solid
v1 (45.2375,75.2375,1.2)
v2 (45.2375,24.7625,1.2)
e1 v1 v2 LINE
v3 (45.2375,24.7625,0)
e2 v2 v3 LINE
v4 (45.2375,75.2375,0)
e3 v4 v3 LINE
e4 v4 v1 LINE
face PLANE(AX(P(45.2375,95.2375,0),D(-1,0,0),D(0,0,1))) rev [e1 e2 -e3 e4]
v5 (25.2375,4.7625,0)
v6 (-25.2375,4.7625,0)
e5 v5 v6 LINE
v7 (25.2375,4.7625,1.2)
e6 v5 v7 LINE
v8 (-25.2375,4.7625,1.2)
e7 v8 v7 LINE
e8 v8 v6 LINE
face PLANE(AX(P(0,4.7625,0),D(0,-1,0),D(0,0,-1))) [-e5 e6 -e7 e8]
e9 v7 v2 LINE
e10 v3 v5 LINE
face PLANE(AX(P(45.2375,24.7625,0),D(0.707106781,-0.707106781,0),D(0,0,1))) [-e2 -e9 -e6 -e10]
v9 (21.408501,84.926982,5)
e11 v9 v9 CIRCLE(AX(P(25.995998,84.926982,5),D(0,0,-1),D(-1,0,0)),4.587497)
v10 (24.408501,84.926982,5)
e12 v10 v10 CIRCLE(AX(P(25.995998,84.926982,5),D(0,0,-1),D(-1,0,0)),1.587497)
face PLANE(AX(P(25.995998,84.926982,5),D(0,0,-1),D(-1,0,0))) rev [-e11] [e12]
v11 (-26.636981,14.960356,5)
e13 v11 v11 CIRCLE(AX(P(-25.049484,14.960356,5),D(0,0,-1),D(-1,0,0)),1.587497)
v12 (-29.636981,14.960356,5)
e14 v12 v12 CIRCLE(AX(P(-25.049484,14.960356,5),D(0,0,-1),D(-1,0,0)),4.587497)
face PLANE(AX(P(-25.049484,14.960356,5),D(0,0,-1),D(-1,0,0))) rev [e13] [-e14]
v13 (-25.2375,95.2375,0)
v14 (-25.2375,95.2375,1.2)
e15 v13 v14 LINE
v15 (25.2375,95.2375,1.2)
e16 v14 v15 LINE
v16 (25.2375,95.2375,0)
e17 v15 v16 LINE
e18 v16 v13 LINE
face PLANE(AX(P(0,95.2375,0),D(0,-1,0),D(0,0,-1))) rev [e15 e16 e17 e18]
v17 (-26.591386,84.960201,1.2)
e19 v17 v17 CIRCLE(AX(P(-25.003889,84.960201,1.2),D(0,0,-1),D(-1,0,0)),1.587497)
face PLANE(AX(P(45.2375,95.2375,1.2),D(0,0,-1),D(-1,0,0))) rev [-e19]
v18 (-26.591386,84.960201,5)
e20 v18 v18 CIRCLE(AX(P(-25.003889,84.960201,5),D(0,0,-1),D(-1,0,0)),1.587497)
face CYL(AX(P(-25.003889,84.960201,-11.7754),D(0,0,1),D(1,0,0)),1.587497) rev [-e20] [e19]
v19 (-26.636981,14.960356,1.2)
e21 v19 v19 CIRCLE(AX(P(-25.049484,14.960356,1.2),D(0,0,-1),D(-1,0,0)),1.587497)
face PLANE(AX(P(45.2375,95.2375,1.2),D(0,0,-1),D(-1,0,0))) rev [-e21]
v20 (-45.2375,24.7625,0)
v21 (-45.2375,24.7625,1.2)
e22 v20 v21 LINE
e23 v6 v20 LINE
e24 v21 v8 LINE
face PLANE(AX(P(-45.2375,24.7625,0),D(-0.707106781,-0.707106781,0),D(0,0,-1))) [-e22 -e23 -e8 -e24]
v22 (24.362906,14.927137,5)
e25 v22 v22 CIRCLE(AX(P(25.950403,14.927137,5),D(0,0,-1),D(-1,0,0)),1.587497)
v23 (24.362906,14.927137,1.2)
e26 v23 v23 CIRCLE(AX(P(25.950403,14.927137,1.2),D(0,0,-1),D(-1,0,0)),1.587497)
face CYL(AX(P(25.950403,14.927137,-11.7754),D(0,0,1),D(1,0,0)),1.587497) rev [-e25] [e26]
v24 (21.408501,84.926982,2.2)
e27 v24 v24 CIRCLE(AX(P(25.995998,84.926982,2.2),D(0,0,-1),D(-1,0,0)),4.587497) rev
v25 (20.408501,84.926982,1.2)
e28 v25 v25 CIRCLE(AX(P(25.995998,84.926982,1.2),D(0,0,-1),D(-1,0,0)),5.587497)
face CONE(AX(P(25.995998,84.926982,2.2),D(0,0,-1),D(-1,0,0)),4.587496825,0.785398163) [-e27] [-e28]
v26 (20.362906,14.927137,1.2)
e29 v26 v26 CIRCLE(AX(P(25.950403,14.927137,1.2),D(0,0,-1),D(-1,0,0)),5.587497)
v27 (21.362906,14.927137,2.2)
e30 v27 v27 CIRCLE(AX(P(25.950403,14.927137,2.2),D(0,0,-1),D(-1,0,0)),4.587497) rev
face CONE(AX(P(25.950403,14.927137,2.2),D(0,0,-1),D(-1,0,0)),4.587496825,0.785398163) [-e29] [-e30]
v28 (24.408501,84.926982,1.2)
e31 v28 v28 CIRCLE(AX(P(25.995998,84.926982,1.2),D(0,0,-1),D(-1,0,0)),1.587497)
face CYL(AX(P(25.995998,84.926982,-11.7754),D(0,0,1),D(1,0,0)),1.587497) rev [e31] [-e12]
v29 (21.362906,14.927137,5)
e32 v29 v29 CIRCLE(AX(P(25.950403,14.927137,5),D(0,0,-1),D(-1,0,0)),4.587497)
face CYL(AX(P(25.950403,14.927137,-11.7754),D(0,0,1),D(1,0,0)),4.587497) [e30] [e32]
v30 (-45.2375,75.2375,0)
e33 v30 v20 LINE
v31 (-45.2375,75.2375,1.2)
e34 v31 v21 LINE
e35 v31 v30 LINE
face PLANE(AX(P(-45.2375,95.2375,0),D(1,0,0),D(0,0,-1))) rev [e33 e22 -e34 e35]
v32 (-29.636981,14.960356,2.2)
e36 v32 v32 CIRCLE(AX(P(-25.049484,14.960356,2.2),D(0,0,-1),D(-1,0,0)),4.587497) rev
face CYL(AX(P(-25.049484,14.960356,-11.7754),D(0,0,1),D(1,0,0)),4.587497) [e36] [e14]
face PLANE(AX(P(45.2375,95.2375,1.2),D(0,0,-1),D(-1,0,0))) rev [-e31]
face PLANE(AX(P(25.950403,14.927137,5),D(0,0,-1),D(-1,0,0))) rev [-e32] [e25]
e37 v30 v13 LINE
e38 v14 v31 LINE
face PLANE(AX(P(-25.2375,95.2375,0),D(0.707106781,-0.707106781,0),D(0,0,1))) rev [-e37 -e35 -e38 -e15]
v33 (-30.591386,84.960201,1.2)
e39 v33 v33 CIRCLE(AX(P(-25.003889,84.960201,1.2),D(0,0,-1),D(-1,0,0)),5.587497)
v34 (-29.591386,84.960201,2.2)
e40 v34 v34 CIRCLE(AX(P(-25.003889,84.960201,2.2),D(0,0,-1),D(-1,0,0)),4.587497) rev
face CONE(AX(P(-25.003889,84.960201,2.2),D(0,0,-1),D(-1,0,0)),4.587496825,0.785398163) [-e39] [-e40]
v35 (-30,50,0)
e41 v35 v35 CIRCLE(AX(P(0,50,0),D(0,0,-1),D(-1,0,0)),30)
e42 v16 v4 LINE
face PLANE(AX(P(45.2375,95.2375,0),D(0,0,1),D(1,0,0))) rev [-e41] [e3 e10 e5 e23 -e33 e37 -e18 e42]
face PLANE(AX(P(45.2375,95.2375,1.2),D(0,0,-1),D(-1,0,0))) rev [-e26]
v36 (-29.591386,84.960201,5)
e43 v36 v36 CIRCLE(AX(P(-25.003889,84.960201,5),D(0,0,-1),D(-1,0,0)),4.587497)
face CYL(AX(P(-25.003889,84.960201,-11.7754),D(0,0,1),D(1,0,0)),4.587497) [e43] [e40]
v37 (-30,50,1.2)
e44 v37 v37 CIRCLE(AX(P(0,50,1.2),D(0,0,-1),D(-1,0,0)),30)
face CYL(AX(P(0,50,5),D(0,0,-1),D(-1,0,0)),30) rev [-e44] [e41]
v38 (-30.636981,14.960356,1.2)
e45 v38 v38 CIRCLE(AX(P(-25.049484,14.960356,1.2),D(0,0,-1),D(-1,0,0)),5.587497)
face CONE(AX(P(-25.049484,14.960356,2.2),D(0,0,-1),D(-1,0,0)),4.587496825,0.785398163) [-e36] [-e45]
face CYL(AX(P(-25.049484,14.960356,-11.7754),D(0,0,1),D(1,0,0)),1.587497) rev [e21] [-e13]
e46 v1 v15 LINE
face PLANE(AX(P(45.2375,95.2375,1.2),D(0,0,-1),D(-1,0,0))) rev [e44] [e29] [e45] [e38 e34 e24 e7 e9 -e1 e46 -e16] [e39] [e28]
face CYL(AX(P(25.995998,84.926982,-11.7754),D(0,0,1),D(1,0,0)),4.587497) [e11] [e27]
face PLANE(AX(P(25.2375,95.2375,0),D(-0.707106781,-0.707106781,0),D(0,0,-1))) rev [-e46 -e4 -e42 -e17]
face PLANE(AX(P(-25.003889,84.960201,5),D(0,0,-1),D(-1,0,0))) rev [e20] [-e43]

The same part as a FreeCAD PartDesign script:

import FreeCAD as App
import Part
import Sketcher


def edges_at(feature, points):
    """Names of the edges that pass closest to the given points."""
    edges = feature.Shape.Edges
    near = lambda p: min(range(len(edges)), key=lambda i: edges[i].distToShape(Part.Vertex(*p))[0])
    return sorted({f"Edge{near(p) + 1}" for p in points})

doc = App.newDocument("Part")
body = doc.addObject("PartDesign::Body", "Body")

# Sketch on XZ plane
sketch1 = body.newObject("Sketcher::SketchObject", "Sketch")
sketch1.AttachmentSupport = (doc.getObject("XZ_Plane"), [""])
sketch1.MapMode = "FlatFace"
sketch1.AttachmentOffset = App.Placement(App.Vector(0, 0, -4.7625), App.Rotation())
sketch1.addGeometry(Part.LineSegment(App.Vector(-45.2, 0, 0), App.Vector(-45.2, 1.2, 0)), False)
sketch1.addGeometry(Part.LineSegment(App.Vector(-45.2, 1.2, 0), App.Vector(45.2, 1.2, 0)), False)
sketch1.addGeometry(Part.LineSegment(App.Vector(45.2, 1.2, 0), App.Vector(45.2, 0, 0)), False)
sketch1.addGeometry(Part.LineSegment(App.Vector(45.2, 0, 0), App.Vector(-45.2, 0, 0)), False)
sketch1.addConstraint(Sketcher.Constraint("Coincident", 0, 2, 1, 1))
sketch1.addConstraint(Sketcher.Constraint("Coincident", 1, 2, 2, 1))
sketch1.addConstraint(Sketcher.Constraint("Coincident", 2, 2, 3, 1))
sketch1.addConstraint(Sketcher.Constraint("Coincident", 3, 2, 0, 1))
sketch1.addConstraint(Sketcher.Constraint("Vertical", 0))
sketch1.addConstraint(Sketcher.Constraint("Horizontal", 1))
sketch1.addConstraint(Sketcher.Constraint("Vertical", 2))
sketch1.addConstraint(Sketcher.Constraint("Horizontal", 3))
sketch1.addConstraint(Sketcher.Constraint("Symmetric", 2, 2, 3, 2, -1, 1))
sketch1.addConstraint(Sketcher.Constraint("DistanceY", 0, 1, 0, 2, 1.2))
sketch1.addConstraint(Sketcher.Constraint("DistanceX", 1, 1, 1, 2, 90.475))
pad1 = body.newObject("PartDesign::Pad", "Pad")
pad1.Profile = sketch1
pad1.Length = 90.475
pad1.Reversed = True

# Sketch on XY plane
sketch2 = body.newObject("Sketcher::SketchObject", "Sketch001")
sketch2.AttachmentSupport = (doc.getObject("XY_Plane"), [""])
sketch2.MapMode = "FlatFace"
sketch2.AttachmentOffset = App.Placement(App.Vector(0, 0, 5), App.Rotation())
sketch2.addGeometry(Part.Circle(App.Vector(-25, 85, 0), App.Vector(0, 0, 1), 4.6), False)
sketch2.addGeometry(Part.Circle(App.Vector(-25, 85, 0), App.Vector(0, 0, 1), 1.6), False)
sketch2.addGeometry(Part.Circle(App.Vector(26, 84.9, 0), App.Vector(0, 0, 1), 4.6), False)
sketch2.addGeometry(Part.Circle(App.Vector(26, 84.9, 0), App.Vector(0, 0, 1), 1.6), False)
sketch2.addGeometry(Part.Circle(App.Vector(-25, 15, 0), App.Vector(0, 0, 1), 4.6), False)
sketch2.addGeometry(Part.Circle(App.Vector(-25, 15, 0), App.Vector(0, 0, 1), 1.6), False)
sketch2.addGeometry(Part.Circle(App.Vector(26, 14.9, 0), App.Vector(0, 0, 1), 4.6), False)
sketch2.addGeometry(Part.Circle(App.Vector(26, 14.9, 0), App.Vector(0, 0, 1), 1.6), False)
sketch2.addConstraint(Sketcher.Constraint("Coincident", 1, 3, 0, 3))
sketch2.addConstraint(Sketcher.Constraint("Coincident", 3, 3, 2, 3))
sketch2.addConstraint(Sketcher.Constraint("Coincident", 5, 3, 4, 3))
sketch2.addConstraint(Sketcher.Constraint("Coincident", 7, 3, 6, 3))
sketch2.addConstraint(Sketcher.Constraint("Equal", 0, 2))
sketch2.addConstraint(Sketcher.Constraint("Equal", 1, 3))
sketch2.addConstraint(Sketcher.Constraint("Equal", 2, 4))
sketch2.addConstraint(Sketcher.Constraint("Equal", 3, 5))
sketch2.addConstraint(Sketcher.Constraint("Equal", 4, 6))
sketch2.addConstraint(Sketcher.Constraint("Equal", 5, 7))
sketch2.addConstraint(Sketcher.Constraint("Diameter", 0, 9.174994))
sketch2.addConstraint(Sketcher.Constraint("Diameter", 1, 3.174994))
sketch2.addConstraint(Sketcher.Constraint("DistanceY", -1, 1, 0, 3, 84.960201))
sketch2.addConstraint(Sketcher.Constraint("DistanceX", 0, 3, -1, 1, 25.003889))
sketch2.addConstraint(Sketcher.Constraint("DistanceY", 2, 3, 0, 3, 0.033219))
sketch2.addConstraint(Sketcher.Constraint("DistanceY", 6, 3, 4, 3, 0.033219))
sketch2.addConstraint(Sketcher.Constraint("DistanceX", -1, 1, 2, 3, 25.995998))
sketch2.addConstraint(Sketcher.Constraint("DistanceX", 4, 3, -1, 1, 25.049484))
sketch2.addConstraint(Sketcher.Constraint("DistanceY", -1, 1, 4, 3, 14.960356))
sketch2.addConstraint(Sketcher.Constraint("DistanceX", -1, 1, 6, 3, 25.950403))
pad2 = body.newObject("PartDesign::Pad", "Pad001")
pad2.Profile = sketch2
pad2.Length = 3.8
pad2.Reversed = True
doc.recompute()

chamfer = body.newObject("PartDesign::Chamfer", "Chamfer")
chamfer.Base = (pad2, edges_at(pad2, [
    (-20.416, 84.96, 1.2),
    (30.583, 84.927, 1.2),
    (-20.462, 14.96, 1.2),
    (30.538, 14.927, 1.2),
]))
chamfer.Size = 1

# Sketch on XY plane
sketch3 = body.newObject("Sketcher::SketchObject", "Sketch002")
sketch3.AttachmentSupport = (doc.getObject("XY_Plane"), [""])
sketch3.MapMode = "FlatFace"
sketch3.addGeometry(Part.Circle(App.Vector(0, 50, 0), App.Vector(0, 0, 1), 30), False)
sketch3.addConstraint(Sketcher.Constraint("PointOnObject", 0, 3, -2))
sketch3.addConstraint(Sketcher.Constraint("Diameter", 0, 60.0))
sketch3.addConstraint(Sketcher.Constraint("DistanceY", -1, 1, 0, 3, 50.0))
pocket1 = body.newObject("PartDesign::Pocket", "Pocket")
pocket1.Profile = sketch3
pocket1.Type = "ThroughAll"
pocket1.Reversed = True
doc.recompute()

chamfer2 = body.newObject("PartDesign::Chamfer", "Chamfer001")
chamfer2.Base = (pocket1, edges_at(pocket1, [
    (-45.237, 95.237, 0.6),
    (45.237, 95.237, 0.6),
    (-45.237, 4.763, 0.6),
    (45.237, 4.763, 0.6),
]))
chamfer2.Size = 20

doc.recompute()
